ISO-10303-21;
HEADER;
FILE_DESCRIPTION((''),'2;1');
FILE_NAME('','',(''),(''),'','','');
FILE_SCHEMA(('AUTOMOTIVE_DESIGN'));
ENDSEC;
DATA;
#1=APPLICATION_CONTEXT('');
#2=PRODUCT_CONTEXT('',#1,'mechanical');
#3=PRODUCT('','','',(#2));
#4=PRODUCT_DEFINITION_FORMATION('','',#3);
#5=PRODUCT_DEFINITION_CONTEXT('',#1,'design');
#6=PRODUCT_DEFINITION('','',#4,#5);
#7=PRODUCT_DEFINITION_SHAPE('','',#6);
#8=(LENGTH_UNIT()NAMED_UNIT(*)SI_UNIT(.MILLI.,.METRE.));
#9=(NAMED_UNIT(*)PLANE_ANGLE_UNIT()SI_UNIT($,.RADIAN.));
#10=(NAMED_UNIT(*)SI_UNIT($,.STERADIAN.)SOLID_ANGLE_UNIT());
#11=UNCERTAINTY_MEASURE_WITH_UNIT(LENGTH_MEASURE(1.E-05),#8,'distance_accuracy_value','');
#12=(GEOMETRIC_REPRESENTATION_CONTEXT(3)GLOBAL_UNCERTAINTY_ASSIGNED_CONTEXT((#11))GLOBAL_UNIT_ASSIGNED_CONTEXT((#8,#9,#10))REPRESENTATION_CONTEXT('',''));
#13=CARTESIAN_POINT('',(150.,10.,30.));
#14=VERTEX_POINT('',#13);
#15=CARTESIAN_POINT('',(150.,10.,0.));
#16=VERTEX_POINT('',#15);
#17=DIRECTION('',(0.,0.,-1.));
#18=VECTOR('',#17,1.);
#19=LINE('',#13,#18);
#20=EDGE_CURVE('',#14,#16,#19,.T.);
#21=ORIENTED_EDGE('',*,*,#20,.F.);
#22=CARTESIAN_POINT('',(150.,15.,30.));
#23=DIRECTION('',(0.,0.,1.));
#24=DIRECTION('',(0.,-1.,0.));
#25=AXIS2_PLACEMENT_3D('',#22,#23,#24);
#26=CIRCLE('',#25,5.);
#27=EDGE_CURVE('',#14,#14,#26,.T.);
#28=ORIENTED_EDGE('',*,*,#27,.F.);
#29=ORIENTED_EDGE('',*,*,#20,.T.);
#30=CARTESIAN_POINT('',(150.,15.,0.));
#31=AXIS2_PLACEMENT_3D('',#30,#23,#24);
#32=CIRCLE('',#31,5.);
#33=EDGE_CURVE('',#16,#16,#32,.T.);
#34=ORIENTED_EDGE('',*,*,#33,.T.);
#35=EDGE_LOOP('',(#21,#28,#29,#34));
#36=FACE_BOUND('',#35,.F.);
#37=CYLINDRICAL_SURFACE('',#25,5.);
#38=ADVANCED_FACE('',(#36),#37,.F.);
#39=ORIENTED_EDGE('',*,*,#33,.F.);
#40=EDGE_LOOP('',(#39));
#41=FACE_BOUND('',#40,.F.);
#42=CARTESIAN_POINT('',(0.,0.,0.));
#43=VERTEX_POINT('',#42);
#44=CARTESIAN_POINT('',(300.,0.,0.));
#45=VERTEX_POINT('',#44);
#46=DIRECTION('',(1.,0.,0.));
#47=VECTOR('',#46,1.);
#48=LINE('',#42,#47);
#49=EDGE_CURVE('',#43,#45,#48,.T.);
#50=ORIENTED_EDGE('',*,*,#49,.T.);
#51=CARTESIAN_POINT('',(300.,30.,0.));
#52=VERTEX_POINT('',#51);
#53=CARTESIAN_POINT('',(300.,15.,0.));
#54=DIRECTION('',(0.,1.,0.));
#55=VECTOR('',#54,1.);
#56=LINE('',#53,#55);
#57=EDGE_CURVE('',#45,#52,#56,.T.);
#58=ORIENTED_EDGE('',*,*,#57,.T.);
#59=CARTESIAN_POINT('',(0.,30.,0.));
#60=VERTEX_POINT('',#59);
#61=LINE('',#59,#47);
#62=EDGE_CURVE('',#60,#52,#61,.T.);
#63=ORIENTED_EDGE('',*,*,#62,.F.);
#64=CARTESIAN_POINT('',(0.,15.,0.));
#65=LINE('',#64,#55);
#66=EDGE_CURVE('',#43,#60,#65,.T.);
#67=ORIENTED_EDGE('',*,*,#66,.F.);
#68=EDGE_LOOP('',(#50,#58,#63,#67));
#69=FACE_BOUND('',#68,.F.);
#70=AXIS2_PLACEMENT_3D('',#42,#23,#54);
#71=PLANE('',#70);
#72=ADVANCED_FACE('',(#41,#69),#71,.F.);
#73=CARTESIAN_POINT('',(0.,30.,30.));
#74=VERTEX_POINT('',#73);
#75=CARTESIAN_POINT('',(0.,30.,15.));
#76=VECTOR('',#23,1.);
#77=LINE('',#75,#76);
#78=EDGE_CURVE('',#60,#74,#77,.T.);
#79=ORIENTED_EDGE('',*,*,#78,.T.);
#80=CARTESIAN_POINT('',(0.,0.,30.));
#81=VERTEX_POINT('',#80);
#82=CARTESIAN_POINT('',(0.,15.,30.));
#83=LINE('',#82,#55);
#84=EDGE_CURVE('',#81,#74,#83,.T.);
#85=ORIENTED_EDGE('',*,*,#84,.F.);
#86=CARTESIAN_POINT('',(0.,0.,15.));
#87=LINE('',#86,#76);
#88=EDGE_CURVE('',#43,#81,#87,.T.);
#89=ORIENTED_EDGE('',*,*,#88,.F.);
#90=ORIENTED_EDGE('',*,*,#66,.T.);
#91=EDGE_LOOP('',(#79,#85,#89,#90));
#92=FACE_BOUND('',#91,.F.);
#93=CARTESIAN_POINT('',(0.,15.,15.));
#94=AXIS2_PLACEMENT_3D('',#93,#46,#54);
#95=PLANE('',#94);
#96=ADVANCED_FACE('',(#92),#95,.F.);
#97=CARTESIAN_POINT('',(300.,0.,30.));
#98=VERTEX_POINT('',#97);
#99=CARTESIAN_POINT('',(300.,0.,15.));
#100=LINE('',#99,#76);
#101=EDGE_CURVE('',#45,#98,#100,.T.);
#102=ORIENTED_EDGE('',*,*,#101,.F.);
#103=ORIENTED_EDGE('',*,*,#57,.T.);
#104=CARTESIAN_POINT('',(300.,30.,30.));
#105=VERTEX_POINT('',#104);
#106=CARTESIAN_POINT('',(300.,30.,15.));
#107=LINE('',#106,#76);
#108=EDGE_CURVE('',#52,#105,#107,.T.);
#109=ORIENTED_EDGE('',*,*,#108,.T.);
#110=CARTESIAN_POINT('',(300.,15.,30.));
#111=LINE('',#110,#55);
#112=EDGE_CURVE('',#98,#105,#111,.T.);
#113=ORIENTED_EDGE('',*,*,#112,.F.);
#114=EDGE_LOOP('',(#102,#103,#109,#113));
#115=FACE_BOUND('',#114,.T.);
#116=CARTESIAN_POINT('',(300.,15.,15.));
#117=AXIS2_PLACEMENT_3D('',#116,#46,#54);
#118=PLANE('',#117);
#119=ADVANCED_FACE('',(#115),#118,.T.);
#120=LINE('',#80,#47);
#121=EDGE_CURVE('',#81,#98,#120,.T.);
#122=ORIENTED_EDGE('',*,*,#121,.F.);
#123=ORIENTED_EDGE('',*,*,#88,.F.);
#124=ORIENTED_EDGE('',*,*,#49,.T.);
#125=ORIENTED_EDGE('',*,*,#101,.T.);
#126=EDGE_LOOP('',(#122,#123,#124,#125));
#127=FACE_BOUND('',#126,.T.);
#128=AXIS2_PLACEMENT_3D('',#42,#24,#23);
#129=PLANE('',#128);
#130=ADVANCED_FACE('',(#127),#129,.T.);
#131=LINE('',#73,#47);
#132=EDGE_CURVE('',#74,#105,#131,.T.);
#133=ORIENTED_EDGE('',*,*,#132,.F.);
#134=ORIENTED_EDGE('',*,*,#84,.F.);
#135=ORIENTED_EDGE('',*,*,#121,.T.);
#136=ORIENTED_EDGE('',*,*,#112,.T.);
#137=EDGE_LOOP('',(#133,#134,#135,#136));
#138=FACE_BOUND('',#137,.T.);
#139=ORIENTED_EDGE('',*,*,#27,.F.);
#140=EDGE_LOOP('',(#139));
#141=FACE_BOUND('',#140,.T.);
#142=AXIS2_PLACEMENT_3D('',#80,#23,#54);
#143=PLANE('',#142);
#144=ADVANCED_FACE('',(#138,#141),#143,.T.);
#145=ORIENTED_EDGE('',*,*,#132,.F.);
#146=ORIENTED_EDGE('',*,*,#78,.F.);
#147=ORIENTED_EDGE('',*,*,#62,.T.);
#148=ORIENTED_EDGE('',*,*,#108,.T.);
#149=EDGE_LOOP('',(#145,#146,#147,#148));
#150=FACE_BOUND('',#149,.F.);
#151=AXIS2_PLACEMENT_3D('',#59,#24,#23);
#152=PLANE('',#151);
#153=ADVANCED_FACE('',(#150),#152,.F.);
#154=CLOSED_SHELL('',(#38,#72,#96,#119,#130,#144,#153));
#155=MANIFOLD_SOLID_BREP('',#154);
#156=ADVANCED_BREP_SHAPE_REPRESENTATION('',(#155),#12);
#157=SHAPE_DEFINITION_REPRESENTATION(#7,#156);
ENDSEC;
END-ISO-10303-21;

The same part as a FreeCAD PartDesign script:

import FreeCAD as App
import Part
import Sketcher

V = App.Vector
Q = App.Units.Quantity

doc = App.newDocument("Part")
params = doc.addObject("Spreadsheet::Sheet", "Params")
for row, (alias, value) in enumerate([
    ("sketch1_width", "30 mm"),
    ("pad1_length", "300 mm"),
    ("sketch2_diameter", "10 mm"),
], start=1):
    params.set(f"A{row}", alias)
    params.set(f"B{row}", "=" + value)
    params.setAlias(f"B{row}", alias)

body = doc.addObject("PartDesign::Body", "Body")

sketch1 = body.newObject("Sketcher::SketchObject", "Sketch")
sketch1.AttachmentSupport = (doc.getObject("YZ_Plane"), [""])
sketch1.MapMode = "FlatFace"
sketch1.addGeometry(Part.LineSegment(V(0, 30, 0), V(0, 0, 0)), False)
sketch1.addGeometry(Part.LineSegment(V(0, 0, 0), V(30, 0, 0)), False)
sketch1.addGeometry(Part.LineSegment(V(30, 0, 0), V(30, 30, 0)), False)
sketch1.addGeometry(Part.LineSegment(V(30, 30, 0), V(0, 30, 0)), False)
sketch1.addConstraint(Sketcher.Constraint("Coincident", 0, 2, 1, 1))
sketch1.addConstraint(Sketcher.Constraint("Coincident", 1, 2, 2, 1))
sketch1.addConstraint(Sketcher.Constraint("Coincident", 2, 2, 3, 1))
sketch1.addConstraint(Sketcher.Constraint("Coincident", 3, 2, 0, 1))
sketch1.addConstraint(Sketcher.Constraint("Vertical", 0))
sketch1.addConstraint(Sketcher.Constraint("Horizontal", 1))
sketch1.addConstraint(Sketcher.Constraint("Vertical", 2))
sketch1.addConstraint(Sketcher.Constraint("Horizontal", 3))
sketch1.addConstraint(Sketcher.Constraint("Coincident", 0, 2, -1, 1))
sketch1.addConstraint(Sketcher.Constraint("Equal", 3, 0))
sketch1.addConstraint(Sketcher.Constraint("DistanceX", 1, 1, 1, 2, Q("30 mm")))
sketch1.setExpression("Constraints[10]", "Params.sketch1_width")
pad1 = body.newObject("PartDesign::Pad", "Pad")
pad1.Profile = sketch1
pad1.setExpression("Length", "Params.pad1_length")

sketch2 = body.newObject("Sketcher::SketchObject", "Sketch001")
sketch2.AttachmentSupport = (doc.getObject("XY_Plane"), [""])
sketch2.MapMode = "FlatFace"
sketch2.AttachmentOffset = App.Placement(V(0, 0, 30), App.Rotation())
sketch2.addGeometry(Part.Circle(V(150, 15, 0), V(0, 0, 1), 5), False)
sketch2.addConstraint(Sketcher.Constraint("Diameter", 0, Q("10 mm")))
sketch2.addConstraint(Sketcher.Constraint("DistanceX", -1, 1, 0, 3, Q("150 mm")))
sketch2.addConstraint(Sketcher.Constraint("DistanceY", -1, 1, 0, 3, Q("15 mm")))
sketch2.setExpression("Constraints[0]", "Params.sketch2_diameter")
pocket1 = body.newObject("PartDesign::Pocket", "Pocket")
pocket1.Profile = sketch2
pocket1.Type = "ThroughAll"

doc.recompute()
